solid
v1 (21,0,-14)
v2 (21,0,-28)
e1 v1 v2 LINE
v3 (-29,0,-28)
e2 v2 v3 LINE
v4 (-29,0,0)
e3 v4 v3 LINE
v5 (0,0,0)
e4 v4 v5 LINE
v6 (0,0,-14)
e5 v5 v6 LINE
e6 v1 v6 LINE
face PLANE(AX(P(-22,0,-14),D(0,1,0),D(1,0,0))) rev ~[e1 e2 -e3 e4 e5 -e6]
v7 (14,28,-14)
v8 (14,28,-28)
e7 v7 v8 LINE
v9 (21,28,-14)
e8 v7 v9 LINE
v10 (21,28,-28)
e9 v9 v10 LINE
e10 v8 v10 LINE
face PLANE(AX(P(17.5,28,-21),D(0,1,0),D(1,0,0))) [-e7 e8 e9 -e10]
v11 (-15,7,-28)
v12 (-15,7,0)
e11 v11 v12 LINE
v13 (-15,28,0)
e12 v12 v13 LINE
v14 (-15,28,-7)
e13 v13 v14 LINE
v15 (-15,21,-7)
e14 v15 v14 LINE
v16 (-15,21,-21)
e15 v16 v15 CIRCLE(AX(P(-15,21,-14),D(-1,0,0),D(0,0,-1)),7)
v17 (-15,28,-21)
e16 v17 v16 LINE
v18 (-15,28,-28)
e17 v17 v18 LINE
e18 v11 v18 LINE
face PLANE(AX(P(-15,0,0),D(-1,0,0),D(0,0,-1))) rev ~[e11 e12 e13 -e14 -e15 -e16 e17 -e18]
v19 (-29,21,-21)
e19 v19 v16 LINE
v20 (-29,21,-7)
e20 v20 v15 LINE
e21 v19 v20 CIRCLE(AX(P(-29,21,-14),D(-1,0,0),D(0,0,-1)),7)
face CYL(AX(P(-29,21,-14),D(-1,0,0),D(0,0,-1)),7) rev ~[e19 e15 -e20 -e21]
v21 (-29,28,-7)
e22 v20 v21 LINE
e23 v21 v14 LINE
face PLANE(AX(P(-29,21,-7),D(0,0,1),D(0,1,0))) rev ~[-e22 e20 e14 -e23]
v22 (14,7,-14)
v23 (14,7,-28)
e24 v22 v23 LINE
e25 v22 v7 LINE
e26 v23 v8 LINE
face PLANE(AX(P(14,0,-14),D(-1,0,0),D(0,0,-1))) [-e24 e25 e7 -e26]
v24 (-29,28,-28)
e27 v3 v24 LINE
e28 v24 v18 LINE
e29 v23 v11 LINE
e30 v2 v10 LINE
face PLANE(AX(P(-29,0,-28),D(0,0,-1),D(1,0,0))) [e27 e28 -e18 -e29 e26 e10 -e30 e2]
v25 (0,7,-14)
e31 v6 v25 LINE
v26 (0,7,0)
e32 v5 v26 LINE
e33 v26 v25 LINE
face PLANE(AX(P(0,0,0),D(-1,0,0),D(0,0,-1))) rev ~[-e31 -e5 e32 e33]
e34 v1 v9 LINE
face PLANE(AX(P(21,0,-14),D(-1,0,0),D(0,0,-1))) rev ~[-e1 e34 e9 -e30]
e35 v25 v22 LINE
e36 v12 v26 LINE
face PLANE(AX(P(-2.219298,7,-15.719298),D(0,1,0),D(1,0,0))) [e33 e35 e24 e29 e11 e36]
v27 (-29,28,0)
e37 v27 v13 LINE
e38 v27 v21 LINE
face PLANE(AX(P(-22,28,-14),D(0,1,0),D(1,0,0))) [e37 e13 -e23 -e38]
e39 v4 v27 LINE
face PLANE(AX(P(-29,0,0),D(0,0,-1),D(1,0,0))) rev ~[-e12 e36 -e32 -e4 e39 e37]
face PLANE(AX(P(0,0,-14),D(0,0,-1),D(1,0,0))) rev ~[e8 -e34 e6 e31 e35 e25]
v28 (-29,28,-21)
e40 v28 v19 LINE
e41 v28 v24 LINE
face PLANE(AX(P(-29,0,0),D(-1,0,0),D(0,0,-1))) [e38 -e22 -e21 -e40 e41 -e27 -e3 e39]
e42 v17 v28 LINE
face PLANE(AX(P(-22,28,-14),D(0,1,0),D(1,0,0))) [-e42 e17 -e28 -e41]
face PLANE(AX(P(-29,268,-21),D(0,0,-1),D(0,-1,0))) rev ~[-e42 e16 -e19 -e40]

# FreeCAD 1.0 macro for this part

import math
import FreeCAD as App
import Part
import Sketcher
from FreeCAD import Vector
Q = App.Units.Quantity


def add_polygon(sketch, points):
    """Adds a closed chain of lines whose ends are joined by coincident constraints."""
    first, n = sketch.GeometryCount, len(points)
    for a, b in zip(points, points[1:] + points[:1]):
        sketch.addGeometry(Part.LineSegment(App.Vector(*a, 0), App.Vector(*b, 0)), False)
    for i in range(n):
        sketch.addConstraint(Sketcher.Constraint("Coincident", first + i, 2, first + (i + 1) % n, 1))

doc = App.newDocument("Part")
body = doc.addObject("PartDesign::Body", "Body")

sketch1 = body.newObject("Sketcher::SketchObject", "Sketch")
sketch1.AttachmentSupport = (doc.getObject("XZ_Plane"), [""])
sketch1.MapMode = "FlatFace"
add_polygon(sketch1, [(-15, 0), (0, 0), (0, -14), (14, -14), (14, -28), (-15, -28)])
sketch1.addConstraint([
    Sketcher.Constraint("Horizontal", 0),
    Sketcher.Constraint("Vertical", 1),
    Sketcher.Constraint("Horizontal", 2),
    Sketcher.Constraint("Vertical", 3),
    Sketcher.Constraint("Horizontal", 4),
    Sketcher.Constraint("Vertical", 5),
    Sketcher.Constraint("Coincident", 0, 2, -1, 1),
    Sketcher.Constraint("Equal", 2, 1),
    Sketcher.Constraint("Equal", 1, 3),
    Sketcher.Constraint("DistanceX", 0, 1, 0, 2, Q("15 mm")),
    Sketcher.Constraint("DistanceX", 2, 1, 2, 2, Q("14 mm")),
])
pad1 = body.newObject("PartDesign::Pad", "Pad")
pad1.Profile = sketch1
pad1.Length = 7
pad1.Reversed = True

sketch2 = body.newObject("Sketcher::SketchObject", "Sketch001")
sketch2.AttachmentSupport = (doc.getObject("XZ_Plane"), [""])
sketch2.MapMode = "FlatFace"
add_polygon(sketch2, [(-29, -28), (-29, 0), (-15, 0), (-15, -28)])
add_polygon(sketch2, [(14, -28), (14, -14), (21, -14), (21, -28)])
sketch2.addConstraint([
    Sketcher.Constraint("Vertical", 0),
    Sketcher.Constraint("Horizontal", 1),
    Sketcher.Constraint("Vertical", 2),
    Sketcher.Constraint("Horizontal", 3),
    Sketcher.Constraint("Vertical", 4),
    Sketcher.Constraint("Horizontal", 5),
    Sketcher.Constraint("Vertical", 6),
    Sketcher.Constraint("Horizontal", 7),
    Sketcher.Constraint("PointOnObject", 0, 2, -1),
    Sketcher.Constraint("Horizontal", 3, 2, 6, 2),
    Sketcher.Constraint("Equal", 3, 4),
    Sketcher.Constraint("DistanceX", 1, 1, 1, 2, Q("14 mm")),
    Sketcher.Constraint("DistanceX", 5, 1, 5, 2, Q("7 mm")),
    Sketcher.Constraint("DistanceY", 0, 1, 0, 2, Q("28 mm")),
    Sketcher.Constraint("DistanceX", 0, 2, -1, 1, Q("29 mm")),
    Sketcher.Constraint("DistanceX", -1, 1, 4, 2, Q("14 mm")),
])
pad2 = body.newObject("PartDesign::Pad", "Pad001")
pad2.Profile = sketch2
pad2.Length = 28
pad2.Reversed = True

sketch3 = body.newObject("Sketcher::SketchObject", "Sketch002")
sketch3.AttachmentSupport = (doc.getObject("YZ_Plane"), [""])
sketch3.MapMode = "FlatFace"
sketch3.AttachmentOffset = App.Placement(Vector(0, 0, -29), App.Rotation())
sketch3.addGeometry([
    Part.ArcOfCircle(Part.Circle(Vector(21, -14, 0), Vector(0, 0, 1), 7), math.radians(90), math.radians(270)),
    Part.LineSegment(Vector(21, -7, 0), Vector(268, -7, 0)),
    Part.LineSegment(Vector(268, -7, 0), Vector(268, -21, 0)),
    Part.LineSegment(Vector(268, -21, 0), Vector(21, -21, 0)),
], False)
sketch3.addConstraint([
    Sketcher.Constraint("Tangent", 0, 1, 1, 1),
    Sketcher.Constraint("Coincident", 1, 2, 2, 1),
    Sketcher.Constraint("Coincident", 2, 2, 3, 1),
    Sketcher.Constraint("Tangent", 3, 2, 0, 2),
    Sketcher.Constraint("Horizontal", 1),
    Sketcher.Constraint("Vertical", 2),
    Sketcher.Constraint("Horizontal", 3),
    Sketcher.Constraint("Radius", 0, Q("7 mm")),
    Sketcher.Constraint("DistanceX", 1, 1, 1, 2, Q("247 mm")),
    Sketcher.Constraint("DistanceX", -1, 1, 0, 3, Q("21 mm")),
    Sketcher.Constraint("DistanceY", 0, 3, -1, 1, Q("14 mm")),
])
pocket1 = body.newObject("PartDesign::Pocket", "Pocket")
pocket1.Profile = sketch3
pocket1.Type = "TwoLengths"
pocket1.Length = 1
pocket1.Length2 = 28

doc.recompute()
